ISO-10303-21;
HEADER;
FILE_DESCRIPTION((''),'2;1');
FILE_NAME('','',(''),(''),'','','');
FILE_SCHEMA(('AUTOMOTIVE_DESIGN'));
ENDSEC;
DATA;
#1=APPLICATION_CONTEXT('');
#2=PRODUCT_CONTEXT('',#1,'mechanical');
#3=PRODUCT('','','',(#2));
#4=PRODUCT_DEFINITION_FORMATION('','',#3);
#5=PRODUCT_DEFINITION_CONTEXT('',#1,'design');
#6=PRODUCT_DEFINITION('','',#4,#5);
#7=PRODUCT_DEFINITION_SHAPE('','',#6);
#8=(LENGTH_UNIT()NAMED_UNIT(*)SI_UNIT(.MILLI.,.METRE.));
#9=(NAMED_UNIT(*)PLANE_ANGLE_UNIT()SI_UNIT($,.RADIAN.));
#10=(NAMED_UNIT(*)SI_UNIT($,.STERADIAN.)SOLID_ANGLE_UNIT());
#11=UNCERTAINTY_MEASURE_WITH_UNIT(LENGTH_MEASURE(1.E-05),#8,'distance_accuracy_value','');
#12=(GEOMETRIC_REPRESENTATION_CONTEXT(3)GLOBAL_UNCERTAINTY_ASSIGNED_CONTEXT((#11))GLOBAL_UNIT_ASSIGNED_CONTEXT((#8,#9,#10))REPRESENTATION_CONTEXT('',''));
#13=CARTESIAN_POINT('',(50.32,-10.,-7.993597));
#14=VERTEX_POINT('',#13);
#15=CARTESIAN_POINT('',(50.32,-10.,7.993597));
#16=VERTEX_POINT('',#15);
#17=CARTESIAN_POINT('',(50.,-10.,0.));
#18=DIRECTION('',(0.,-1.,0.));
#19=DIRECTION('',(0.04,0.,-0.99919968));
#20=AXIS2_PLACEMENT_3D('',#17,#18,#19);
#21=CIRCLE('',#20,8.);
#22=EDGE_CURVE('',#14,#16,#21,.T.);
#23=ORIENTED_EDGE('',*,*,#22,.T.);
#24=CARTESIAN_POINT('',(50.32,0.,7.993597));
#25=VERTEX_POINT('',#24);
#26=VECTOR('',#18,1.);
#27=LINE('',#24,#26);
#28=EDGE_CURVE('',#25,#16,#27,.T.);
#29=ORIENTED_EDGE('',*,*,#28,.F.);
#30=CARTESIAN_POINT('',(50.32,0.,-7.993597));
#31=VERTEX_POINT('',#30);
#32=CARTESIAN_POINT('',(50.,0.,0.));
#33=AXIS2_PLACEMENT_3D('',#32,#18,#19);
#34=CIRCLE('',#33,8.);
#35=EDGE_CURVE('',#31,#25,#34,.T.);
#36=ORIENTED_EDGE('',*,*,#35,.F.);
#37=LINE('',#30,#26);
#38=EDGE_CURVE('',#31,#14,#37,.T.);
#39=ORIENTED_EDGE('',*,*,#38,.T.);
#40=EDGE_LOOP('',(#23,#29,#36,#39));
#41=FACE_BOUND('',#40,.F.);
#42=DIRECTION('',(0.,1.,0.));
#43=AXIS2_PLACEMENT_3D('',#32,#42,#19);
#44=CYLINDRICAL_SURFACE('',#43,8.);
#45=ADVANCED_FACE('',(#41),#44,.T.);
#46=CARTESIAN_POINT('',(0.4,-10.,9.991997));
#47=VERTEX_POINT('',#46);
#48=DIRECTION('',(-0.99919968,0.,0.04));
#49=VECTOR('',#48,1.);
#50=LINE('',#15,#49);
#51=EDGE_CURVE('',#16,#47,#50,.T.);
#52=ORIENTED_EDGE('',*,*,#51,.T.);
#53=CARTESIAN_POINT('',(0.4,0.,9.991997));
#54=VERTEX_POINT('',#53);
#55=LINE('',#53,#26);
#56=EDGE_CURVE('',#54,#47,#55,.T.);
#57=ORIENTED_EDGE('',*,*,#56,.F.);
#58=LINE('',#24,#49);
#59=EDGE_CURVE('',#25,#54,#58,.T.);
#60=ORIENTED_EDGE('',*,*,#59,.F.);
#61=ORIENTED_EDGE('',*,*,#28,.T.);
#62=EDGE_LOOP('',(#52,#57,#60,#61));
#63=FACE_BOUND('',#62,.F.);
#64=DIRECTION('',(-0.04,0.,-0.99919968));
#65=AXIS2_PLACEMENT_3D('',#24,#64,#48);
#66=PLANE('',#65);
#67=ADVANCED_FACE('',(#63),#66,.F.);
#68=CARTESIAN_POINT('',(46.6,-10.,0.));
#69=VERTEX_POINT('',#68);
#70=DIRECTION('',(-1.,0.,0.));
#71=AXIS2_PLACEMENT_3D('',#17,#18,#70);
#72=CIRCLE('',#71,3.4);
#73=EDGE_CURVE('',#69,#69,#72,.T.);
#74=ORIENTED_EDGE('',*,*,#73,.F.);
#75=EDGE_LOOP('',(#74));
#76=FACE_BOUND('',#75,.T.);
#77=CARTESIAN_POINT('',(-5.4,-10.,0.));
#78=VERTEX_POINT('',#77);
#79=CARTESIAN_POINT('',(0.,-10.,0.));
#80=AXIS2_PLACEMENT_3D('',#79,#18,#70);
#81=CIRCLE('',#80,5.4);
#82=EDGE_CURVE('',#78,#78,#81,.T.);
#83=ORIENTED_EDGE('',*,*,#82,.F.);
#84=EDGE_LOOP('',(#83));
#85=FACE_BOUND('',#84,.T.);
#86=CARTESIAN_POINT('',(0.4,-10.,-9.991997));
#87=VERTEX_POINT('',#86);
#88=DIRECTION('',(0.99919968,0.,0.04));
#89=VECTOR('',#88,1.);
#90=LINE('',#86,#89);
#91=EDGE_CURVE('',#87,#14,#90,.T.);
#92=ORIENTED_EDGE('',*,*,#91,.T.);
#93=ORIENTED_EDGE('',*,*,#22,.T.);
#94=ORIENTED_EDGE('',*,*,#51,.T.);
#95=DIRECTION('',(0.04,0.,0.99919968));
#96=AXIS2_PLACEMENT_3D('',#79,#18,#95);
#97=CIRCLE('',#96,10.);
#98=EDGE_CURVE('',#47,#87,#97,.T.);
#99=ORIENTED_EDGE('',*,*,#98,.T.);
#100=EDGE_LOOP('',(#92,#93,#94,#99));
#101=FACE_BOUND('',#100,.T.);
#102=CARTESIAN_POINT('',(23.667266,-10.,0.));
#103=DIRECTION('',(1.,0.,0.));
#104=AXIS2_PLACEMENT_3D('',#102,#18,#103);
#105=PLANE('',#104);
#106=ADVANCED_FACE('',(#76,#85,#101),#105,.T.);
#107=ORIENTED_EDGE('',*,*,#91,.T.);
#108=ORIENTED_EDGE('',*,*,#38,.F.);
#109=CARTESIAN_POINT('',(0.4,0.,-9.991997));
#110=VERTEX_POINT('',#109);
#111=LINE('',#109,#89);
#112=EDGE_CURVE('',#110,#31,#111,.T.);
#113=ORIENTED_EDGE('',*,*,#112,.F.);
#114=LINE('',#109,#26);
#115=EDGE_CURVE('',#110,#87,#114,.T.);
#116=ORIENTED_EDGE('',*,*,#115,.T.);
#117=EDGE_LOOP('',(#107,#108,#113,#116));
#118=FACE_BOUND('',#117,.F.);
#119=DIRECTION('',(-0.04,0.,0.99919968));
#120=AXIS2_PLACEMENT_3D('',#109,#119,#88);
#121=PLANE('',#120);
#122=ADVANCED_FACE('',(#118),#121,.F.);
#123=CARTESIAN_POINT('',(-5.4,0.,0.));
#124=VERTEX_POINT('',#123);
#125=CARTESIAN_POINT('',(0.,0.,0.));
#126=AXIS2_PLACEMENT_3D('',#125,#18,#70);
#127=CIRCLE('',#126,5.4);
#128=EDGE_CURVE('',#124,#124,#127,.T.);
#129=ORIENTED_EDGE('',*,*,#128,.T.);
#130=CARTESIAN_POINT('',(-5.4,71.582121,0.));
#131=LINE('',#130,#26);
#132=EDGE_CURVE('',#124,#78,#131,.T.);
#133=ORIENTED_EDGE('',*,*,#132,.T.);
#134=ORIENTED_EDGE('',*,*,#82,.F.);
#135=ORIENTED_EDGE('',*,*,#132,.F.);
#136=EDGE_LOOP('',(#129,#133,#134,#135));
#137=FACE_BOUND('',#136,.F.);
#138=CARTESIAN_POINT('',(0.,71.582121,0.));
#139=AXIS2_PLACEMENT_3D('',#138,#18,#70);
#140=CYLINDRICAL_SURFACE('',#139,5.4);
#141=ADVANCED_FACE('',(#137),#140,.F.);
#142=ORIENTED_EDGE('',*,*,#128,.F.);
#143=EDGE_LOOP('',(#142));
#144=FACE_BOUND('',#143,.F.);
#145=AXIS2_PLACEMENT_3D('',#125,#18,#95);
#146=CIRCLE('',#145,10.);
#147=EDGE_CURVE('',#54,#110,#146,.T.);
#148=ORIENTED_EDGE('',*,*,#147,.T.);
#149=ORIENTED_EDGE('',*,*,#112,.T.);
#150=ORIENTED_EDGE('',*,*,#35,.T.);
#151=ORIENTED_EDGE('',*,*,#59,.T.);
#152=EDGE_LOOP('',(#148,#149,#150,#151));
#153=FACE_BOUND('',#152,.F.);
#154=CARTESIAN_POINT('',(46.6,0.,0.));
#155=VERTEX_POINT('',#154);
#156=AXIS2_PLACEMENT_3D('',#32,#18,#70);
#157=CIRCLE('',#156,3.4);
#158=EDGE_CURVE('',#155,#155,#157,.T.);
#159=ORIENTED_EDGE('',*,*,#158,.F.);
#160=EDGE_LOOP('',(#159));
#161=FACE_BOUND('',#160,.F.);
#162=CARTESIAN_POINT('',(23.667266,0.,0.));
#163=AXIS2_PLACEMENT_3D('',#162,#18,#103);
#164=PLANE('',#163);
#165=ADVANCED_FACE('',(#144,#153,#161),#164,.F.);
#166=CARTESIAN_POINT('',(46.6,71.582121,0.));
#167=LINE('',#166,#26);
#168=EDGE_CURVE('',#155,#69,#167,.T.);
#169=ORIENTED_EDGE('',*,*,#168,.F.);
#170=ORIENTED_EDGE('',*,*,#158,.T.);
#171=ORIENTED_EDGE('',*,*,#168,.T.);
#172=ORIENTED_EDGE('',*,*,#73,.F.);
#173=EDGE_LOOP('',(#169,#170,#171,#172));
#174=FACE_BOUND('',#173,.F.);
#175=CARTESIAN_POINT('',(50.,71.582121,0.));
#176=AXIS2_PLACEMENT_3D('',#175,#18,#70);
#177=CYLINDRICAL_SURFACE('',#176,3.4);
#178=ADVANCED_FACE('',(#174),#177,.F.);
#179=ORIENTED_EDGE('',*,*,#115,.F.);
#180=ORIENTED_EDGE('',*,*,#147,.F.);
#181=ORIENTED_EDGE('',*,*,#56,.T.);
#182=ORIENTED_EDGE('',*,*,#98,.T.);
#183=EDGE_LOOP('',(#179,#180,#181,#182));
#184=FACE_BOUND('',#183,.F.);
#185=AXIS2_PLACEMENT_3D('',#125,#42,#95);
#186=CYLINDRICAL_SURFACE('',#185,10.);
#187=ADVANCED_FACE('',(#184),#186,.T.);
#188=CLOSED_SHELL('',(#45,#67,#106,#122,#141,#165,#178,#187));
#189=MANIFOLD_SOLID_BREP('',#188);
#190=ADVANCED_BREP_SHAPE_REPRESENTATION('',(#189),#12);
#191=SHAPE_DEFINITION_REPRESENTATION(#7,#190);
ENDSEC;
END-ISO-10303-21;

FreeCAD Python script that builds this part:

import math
import FreeCAD as App
import Part
import Sketcher

V = App.Vector
Q = App.Units.Quantity

doc = App.newDocument("Part")
body = doc.addObject("PartDesign::Body", "Body")

# Sketch on XZ plane
sketch1 = body.newObject("Sketcher::SketchObject", "Sketch")
sketch1.AttachmentSupport = (doc.getObject("XZ_Plane"), [""])
sketch1.MapMode = "FlatFace"
sketch1.addGeometry([
    Part.LineSegment(V(50, 8, 0), V(0, 10, 0)),
    Part.ArcOfCircle(Part.Circle(V(0, 0, 0), V(0, 0, 1), 10), math.radians(88), math.radians(272)),
    Part.LineSegment(V(0, -10, 0), V(50, -8, 0)),
    Part.ArcOfCircle(Part.Circle(V(50, 0, 0), V(0, 0, 1), 8), math.radians(-88), math.radians(88)),
], False)
sketch1.addConstraint([
    Sketcher.Constraint("Tangent", 0, 2, 1, 1),
    Sketcher.Constraint("Tangent", 1, 2, 2, 1),
    Sketcher.Constraint("Tangent", 2, 2, 3, 1),
    Sketcher.Constraint("Tangent", 3, 2, 0, 1),
    Sketcher.Constraint("Coincident", 1, 3, -1, 1),
    Sketcher.Constraint("PointOnObject", 3, 3, -1),
    Sketcher.Constraint("Radius", 1, Q("10 mm")),
    Sketcher.Constraint("Radius", 3, Q("8 mm")),
    Sketcher.Constraint("DistanceX", -1, 1, 3, 3, Q("50 mm")),
])
pad1 = body.newObject("PartDesign::Pad", "Pad")
pad1.Profile = sketch1
pad1.Length = 10

# Sketch on XZ plane
sketch2 = body.newObject("Sketcher::SketchObject", "Sketch001")
sketch2.AttachmentSupport = (doc.getObject("XZ_Plane"), [""])
sketch2.MapMode = "FlatFace"
sketch2.addGeometry(Part.Circle(V(0, 0, 0), V(0, 0, 1), 5), False)
sketch2.addConstraint([
    Sketcher.Constraint("Coincident", 0, 3, -1, 1),
    Sketcher.Constraint("Diameter", 0, Q("10.8 mm")),
])
doc.recompute()
hole = body.newObject("PartDesign::Hole", "Hole")
hole.Profile = sketch2
hole.ThreadType = "None"
hole.Diameter = 10.8
hole.DepthType = "ThroughAll"
hole.Reversed = True

# Sketch on XZ plane
sketch3 = body.newObject("Sketcher::SketchObject", "Sketch002")
sketch3.AttachmentSupport = (doc.getObject("XZ_Plane"), [""])
sketch3.MapMode = "FlatFace"
sketch3.addGeometry(Part.Circle(V(50, 0, 0), V(0, 0, 1), 3.4), False)
sketch3.addConstraint([
    Sketcher.Constraint("PointOnObject", 0, 3, -1),
    Sketcher.Constraint("Diameter", 0, Q("6.8 mm")),
    Sketcher.Constraint("DistanceX", -1, 1, 0, 3, Q("50 mm")),
])
doc.recompute()
hole2 = body.newObject("PartDesign::Hole", "Hole001")
hole2.Profile = sketch3
hole2.ThreadType = "None"
hole2.Diameter = 6.8
hole2.DepthType = "ThroughAll"
hole2.Reversed = True

doc.recompute()
